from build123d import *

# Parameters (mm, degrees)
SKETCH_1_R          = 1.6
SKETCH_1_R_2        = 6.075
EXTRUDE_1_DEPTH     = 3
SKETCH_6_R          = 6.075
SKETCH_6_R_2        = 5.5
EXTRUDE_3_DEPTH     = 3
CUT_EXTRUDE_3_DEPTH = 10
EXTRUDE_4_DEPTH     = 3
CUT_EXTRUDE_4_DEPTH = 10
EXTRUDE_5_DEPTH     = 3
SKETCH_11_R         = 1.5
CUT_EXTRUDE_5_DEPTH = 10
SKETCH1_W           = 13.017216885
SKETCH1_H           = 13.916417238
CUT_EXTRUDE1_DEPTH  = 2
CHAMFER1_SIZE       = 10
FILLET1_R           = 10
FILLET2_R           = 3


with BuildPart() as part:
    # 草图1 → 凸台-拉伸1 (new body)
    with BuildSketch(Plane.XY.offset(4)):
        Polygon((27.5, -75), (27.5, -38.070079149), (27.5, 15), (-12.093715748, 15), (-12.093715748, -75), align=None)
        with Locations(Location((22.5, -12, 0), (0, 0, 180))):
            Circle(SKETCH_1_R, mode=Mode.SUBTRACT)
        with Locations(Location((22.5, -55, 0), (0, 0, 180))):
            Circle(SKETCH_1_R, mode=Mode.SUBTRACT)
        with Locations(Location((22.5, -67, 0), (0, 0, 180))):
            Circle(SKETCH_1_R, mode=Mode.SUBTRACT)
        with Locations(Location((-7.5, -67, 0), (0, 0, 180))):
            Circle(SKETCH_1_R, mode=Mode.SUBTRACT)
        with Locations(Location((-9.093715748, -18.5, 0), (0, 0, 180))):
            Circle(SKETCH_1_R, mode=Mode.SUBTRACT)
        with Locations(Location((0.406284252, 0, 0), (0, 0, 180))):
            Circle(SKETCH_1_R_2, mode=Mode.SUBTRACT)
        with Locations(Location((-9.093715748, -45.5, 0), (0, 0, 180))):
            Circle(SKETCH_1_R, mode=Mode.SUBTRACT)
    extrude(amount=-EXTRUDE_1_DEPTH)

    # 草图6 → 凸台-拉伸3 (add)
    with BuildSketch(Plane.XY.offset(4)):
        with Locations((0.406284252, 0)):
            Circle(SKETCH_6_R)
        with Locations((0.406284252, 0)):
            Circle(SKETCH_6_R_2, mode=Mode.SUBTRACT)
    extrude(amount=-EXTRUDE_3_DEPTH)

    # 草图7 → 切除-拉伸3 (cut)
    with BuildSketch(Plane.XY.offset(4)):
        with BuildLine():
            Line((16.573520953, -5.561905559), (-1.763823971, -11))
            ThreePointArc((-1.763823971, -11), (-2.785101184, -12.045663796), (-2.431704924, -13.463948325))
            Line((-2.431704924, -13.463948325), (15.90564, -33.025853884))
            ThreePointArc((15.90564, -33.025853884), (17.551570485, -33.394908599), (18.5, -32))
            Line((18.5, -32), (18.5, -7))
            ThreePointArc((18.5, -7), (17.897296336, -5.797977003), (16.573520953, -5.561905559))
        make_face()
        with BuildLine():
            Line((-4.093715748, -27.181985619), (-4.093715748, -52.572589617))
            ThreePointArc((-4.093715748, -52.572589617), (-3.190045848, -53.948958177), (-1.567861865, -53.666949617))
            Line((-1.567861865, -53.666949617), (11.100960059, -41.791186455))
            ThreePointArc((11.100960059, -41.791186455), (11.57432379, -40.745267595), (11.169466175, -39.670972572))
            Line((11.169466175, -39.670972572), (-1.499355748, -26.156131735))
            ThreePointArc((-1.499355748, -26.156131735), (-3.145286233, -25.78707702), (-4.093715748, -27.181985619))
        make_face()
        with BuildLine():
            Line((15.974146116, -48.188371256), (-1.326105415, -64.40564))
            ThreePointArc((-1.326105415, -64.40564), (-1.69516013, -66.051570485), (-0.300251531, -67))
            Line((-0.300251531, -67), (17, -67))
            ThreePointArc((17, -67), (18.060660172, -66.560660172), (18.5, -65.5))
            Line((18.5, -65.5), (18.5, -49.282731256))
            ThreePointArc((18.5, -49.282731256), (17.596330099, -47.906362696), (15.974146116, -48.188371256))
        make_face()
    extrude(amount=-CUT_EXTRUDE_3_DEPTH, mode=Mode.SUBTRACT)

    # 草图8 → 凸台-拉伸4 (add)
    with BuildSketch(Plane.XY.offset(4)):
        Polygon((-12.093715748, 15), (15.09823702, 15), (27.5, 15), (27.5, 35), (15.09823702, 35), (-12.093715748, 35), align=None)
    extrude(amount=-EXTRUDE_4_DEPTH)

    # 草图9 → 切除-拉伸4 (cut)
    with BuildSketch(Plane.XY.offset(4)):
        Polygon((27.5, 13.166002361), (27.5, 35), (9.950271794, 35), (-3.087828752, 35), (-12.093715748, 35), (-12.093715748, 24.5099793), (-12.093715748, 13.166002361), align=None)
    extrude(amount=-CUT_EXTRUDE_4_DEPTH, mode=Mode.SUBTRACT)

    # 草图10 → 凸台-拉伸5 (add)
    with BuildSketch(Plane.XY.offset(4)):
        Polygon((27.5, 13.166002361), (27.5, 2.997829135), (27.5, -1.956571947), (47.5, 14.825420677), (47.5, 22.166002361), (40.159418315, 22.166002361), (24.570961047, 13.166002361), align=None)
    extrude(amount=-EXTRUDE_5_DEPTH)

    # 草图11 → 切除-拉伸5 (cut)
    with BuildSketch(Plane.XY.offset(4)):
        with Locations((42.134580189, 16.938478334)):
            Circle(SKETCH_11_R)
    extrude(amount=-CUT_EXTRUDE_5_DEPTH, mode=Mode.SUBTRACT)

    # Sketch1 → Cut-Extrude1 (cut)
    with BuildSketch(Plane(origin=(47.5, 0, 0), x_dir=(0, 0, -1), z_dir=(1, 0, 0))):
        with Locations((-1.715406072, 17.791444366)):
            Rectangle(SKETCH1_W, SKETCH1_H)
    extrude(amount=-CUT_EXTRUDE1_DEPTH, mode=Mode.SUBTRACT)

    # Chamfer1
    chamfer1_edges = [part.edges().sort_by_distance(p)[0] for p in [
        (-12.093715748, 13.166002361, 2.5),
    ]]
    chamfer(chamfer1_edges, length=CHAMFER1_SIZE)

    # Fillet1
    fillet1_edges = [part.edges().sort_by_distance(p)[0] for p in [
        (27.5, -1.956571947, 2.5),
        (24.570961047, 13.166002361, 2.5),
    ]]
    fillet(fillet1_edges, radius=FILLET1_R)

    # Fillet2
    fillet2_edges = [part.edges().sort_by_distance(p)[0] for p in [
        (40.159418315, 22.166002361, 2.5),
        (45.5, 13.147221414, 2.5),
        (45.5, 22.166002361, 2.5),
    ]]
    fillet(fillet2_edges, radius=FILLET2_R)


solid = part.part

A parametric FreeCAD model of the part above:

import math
import FreeCAD as App
import Part
import Sketcher
Q = App.Units.Quantity


def edges_at(feature, points):
    """Names of the edges that pass closest to the given points."""
    edges = feature.Shape.Edges
    near = lambda p: min(range(len(edges)), key=lambda i: edges[i].distToShape(Part.Vertex(*p))[0])
    return sorted({f"Edge{near(p) + 1}" for p in points})


def add_polygon(sketch, points):
    """Adds a closed chain of lines whose ends are joined by coincident constraints."""
    first, n = sketch.GeometryCount, len(points)
    for a, b in zip(points, points[1:] + points[:1]):
        sketch.addGeometry(Part.LineSegment(App.Vector(*a, 0), App.Vector(*b, 0)), False)
    for i in range(n):
        sketch.addConstraint(Sketcher.Constraint("Coincident", first + i, 2, first + (i + 1) % n, 1))

doc = App.newDocument("Part")
body = doc.addObject("PartDesign::Body", "Body")

sketch1 = body.newObject("Sketcher::SketchObject", "Sketch")
sketch1.AttachmentSupport = (doc.getObject("XY_Plane"), [""])
sketch1.MapMode = "FlatFace"
sketch1.AttachmentOffset = App.Placement(App.Vector(0, 0, 4), App.Rotation())
add_polygon(sketch1, [(27.5, -75), (27.5, 15), (-12.1, 15), (-12.1, -75)])
sketch1.addGeometry(Part.Circle(App.Vector(-7.5, -67, 0), App.Vector(0, 0, 1), 1.6), False)
sketch1.addGeometry(Part.Circle(App.Vector(-9.1, -45.5, 0), App.Vector(0, 0, 1), 1.6), False)
sketch1.addGeometry(Part.Circle(App.Vector(22.5, -67, 0), App.Vector(0, 0, 1), 1.6), False)
sketch1.addGeometry(Part.Circle(App.Vector(22.5, -55, 0), App.Vector(0, 0, 1), 1.6), False)
sketch1.addGeometry(Part.Circle(App.Vector(-9.1, -18.5, 0), App.Vector(0, 0, 1), 1.6), False)
sketch1.addGeometry(Part.Circle(App.Vector(0.4, 0, 0), App.Vector(0, 0, 1), 6.1), False)
sketch1.addGeometry(Part.Circle(App.Vector(22.5, -12, 0), App.Vector(0, 0, 1), 1.6), False)
sketch1.addConstraint([
    Sketcher.Constraint("Vertical", 0),
    Sketcher.Constraint("Horizontal", 1),
    Sketcher.Constraint("Vertical", 2),
    Sketcher.Constraint("Horizontal", 3),
    Sketcher.Constraint("Equal", 4, 5),
    Sketcher.Constraint("Equal", 5, 6),
    Sketcher.Constraint("Equal", 6, 7),
    Sketcher.Constraint("Equal", 7, 8),
    Sketcher.Constraint("Equal", 8, 10),
    Sketcher.Constraint("PointOnObject", 9, 3, -1),
    Sketcher.Constraint("Horizontal", 4, 3, 6, 3),
    Sketcher.Constraint("Vertical", 6, 3, 7, 3),
    Sketcher.Constraint("Vertical", 5, 3, 8, 3),
    Sketcher.Constraint("Vertical", 7, 3, 10, 3),
    Sketcher.Constraint("Diameter", 4, Q("3.2 mm")),
    Sketcher.Constraint("Diameter", 9, Q("12.15 mm")),
    Sketcher.Constraint("DistanceY", 0, 1, 0, 2, Q("90 mm")),
    Sketcher.Constraint("DistanceY", 4, 3, -1, 1, Q("67 mm")),
    Sketcher.Constraint("DistanceY", 7, 3, -1, 1, Q("55 mm")),
    Sketcher.Constraint("DistanceY", 10, 3, -1, 1, Q("12 mm")),
    Sketcher.Constraint("DistanceY", -1, 1, 0, 2, Q("15 mm")),
    Sketcher.Constraint("DistanceX", 4, 3, 6, 3, Q("30 mm")),
    Sketcher.Constraint("DistanceY", 5, 3, 8, 3, Q("27 mm")),
    Sketcher.Constraint("DistanceX", 10, 3, 0, 2, Q("5 mm")),
    Sketcher.Constraint("DistanceX", 1, 2, 8, 3, Q("3 mm")),
    Sketcher.Constraint("DistanceX", 4, 3, -1, 1, Q("7.5 mm")),
    Sketcher.Constraint("DistanceY", 5, 3, -1, 1, Q("45.5 mm")),
    Sketcher.Constraint("DistanceX", 8, 3, 9, 3, Q("9.5 mm")),
    Sketcher.Constraint("DistanceX", 1, 2, 1, 1, Q("39.593716 mm")),
])
pad1 = body.newObject("PartDesign::Pad", "Pad")
pad1.Profile = sketch1
pad1.Length = 3
pad1.Reversed = True

sketch2 = body.newObject("Sketcher::SketchObject", "Sketch001")
sketch2.AttachmentSupport = (doc.getObject("XY_Plane"), [""])
sketch2.MapMode = "FlatFace"
sketch2.AttachmentOffset = App.Placement(App.Vector(0, 0, 4), App.Rotation())
sketch2.addGeometry([
    Part.Circle(App.Vector(0, 0, 0), App.Vector(0, 0, 1), 6),
    Part.Circle(App.Vector(0, 0, 0), App.Vector(0, 0, 1), 6),
], False)
sketch2.addConstraint([
    Sketcher.Constraint("Coincident", 1, 3, 0, 3),
    Sketcher.Constraint("PointOnObject", 0, 3, -1),
    Sketcher.Constraint("Diameter", 1, Q("11 mm")),
    Sketcher.Constraint("Diameter", 0, Q("12.15 mm")),
    Sketcher.Constraint("DistanceX", -1, 1, 0, 3, Q("0.406284 mm")),
])
pad2 = body.newObject("PartDesign::Pad", "Pad001")
pad2.Profile = sketch2
pad2.Length = 3
pad2.Reversed = True

sketch3 = body.newObject("Sketcher::SketchObject", "Sketch002")
sketch3.AttachmentSupport = (doc.getObject("XY_Plane"), [""])
sketch3.MapMode = "FlatFace"
sketch3.AttachmentOffset = App.Placement(App.Vector(0, 0, 4), App.Rotation())
sketch3.addGeometry([
    Part.LineSegment(App.Vector(16.6, -5.6, 0), App.Vector(-1.8, -11, 0)),
    Part.ArcOfCircle(Part.Circle(App.Vector(-1.3, -12.4, 0), App.Vector(0, 0, 1), 1.5), math.radians(107), math.radians(223)),
    Part.LineSegment(App.Vector(-2.4, -13.5, 0), App.Vector(15.9, -33, 0)),
    Part.ArcOfCircle(Part.Circle(App.Vector(17, -32, 0), App.Vector(0, 0, 1), 1.5), math.radians(-137), math.radians(0)),
    Part.LineSegment(App.Vector(18.5, -32, 0), App.Vector(18.5, -7, 0)),
    Part.ArcOfCircle(Part.Circle(App.Vector(17, -7, 0), App.Vector(0, 0, 1), 1.5), math.radians(0), math.radians(107)),
    Part.LineSegment(App.Vector(-4.1, -27.2, 0), App.Vector(-4.1, -52.6, 0)),
    Part.ArcOfCircle(Part.Circle(App.Vector(-2.6, -52.6, 0), App.Vector(0, 0, 1), 1.5), math.radians(180), math.radians(313)),
    Part.LineSegment(App.Vector(-1.6, -53.7, 0), App.Vector(11.1, -41.8, 0)),
    Part.ArcOfCircle(Part.Circle(App.Vector(10.1, -40.7, 0), App.Vector(0, 0, 1), 1.5), math.radians(-47), math.radians(43)),
    Part.LineSegment(App.Vector(11.2, -39.7, 0), App.Vector(-1.5, -26.2, 0)),
    Part.ArcOfCircle(Part.Circle(App.Vector(-2.6, -27.2, 0), App.Vector(0, 0, 1), 1.5), math.radians(43), math.radians(180)),
    Part.LineSegment(App.Vector(16, -48.2, 0), App.Vector(-1.3, -64.4, 0)),
    Part.ArcOfCircle(Part.Circle(App.Vector(-0.3, -65.5, 0), App.Vector(0, 0, 1), 1.5), math.radians(133), math.radians(270)),
    Part.LineSegment(App.Vector(-0.3, -67, 0), App.Vector(17, -67, 0)),
    Part.ArcOfCircle(Part.Circle(App.Vector(17, -65.5, 0), App.Vector(0, 0, 1), 1.5), math.radians(-90), math.radians(0)),
    Part.LineSegment(App.Vector(18.5, -65.5, 0), App.Vector(18.5, -49.3, 0)),
    Part.ArcOfCircle(Part.Circle(App.Vector(17, -49.3, 0), App.Vector(0, 0, 1), 1.5), math.radians(0), math.radians(133)),
], False)
sketch3.addConstraint([
    Sketcher.Constraint("Tangent", 0, 2, 1, 1),
    Sketcher.Constraint("Tangent", 1, 2, 2, 1),
    Sketcher.Constraint("Tangent", 2, 2, 3, 1),
    Sketcher.Constraint("Tangent", 3, 2, 4, 1),
    Sketcher.Constraint("Tangent", 4, 2, 5, 1),
    Sketcher.Constraint("Tangent", 5, 2, 0, 1),
    Sketcher.Constraint("Tangent", 6, 2, 7, 1),
    Sketcher.Constraint("Tangent", 7, 2, 8, 1),
    Sketcher.Constraint("Tangent", 8, 2, 9, 1),
    Sketcher.Constraint("Tangent", 9, 2, 10, 1),
    Sketcher.Constraint("Tangent", 10, 2, 11, 1),
    Sketcher.Constraint("Tangent", 11, 2, 6, 1),
    Sketcher.Constraint("Tangent", 12, 2, 13, 1),
    Sketcher.Constraint("Tangent", 13, 2, 14, 1),
    Sketcher.Constraint("Tangent", 14, 2, 15, 1),
    Sketcher.Constraint("Tangent", 15, 2, 16, 1),
    Sketcher.Constraint("Tangent", 16, 2, 17, 1),
    Sketcher.Constraint("Tangent", 17, 2, 12, 1),
    Sketcher.Constraint("Vertical", 4),
    Sketcher.Constraint("Vertical", 6),
    Sketcher.Constraint("Horizontal", 14),
    Sketcher.Constraint("Vertical", 16),
    Sketcher.Constraint("Equal", 1, 3),
    Sketcher.Constraint("Equal", 3, 5),
    Sketcher.Constraint("Equal", 5, 7),
    Sketcher.Constraint("Equal", 7, 9),
    Sketcher.Constraint("Equal", 9, 11),
    Sketcher.Constraint("Equal", 11, 13),
    Sketcher.Constraint("Equal", 13, 15),
    Sketcher.Constraint("Equal", 15, 17),
    Sketcher.Constraint("Perpendicular", 2, 8),
    Sketcher.Constraint("Perpendicular", 8, 10),
    Sketcher.Constraint("Perpendicular", 10, 12),
    Sketcher.Constraint("Vertical", 5, 3, 15, 3),
    Sketcher.Constraint("Radius", 1, Q("1.5 mm")),
    Sketcher.Constraint("DistanceY", 4, 1, 4, 2, Q("25 mm")),
    Sketcher.Constraint("DistanceX", -1, 1, 3, 3, Q("17 mm")),
    Sketcher.Constraint("DistanceY", 3, 3, -1, 1, Q("32 mm")),
    Sketcher.Constraint("DistanceY", 0, 2, -1, 1, Q("11 mm")),
    Sketcher.Constraint("DistanceY", 13, 2, -1, 1, Q("67 mm")),
    Sketcher.Constraint("Distance", 8, Q("17.3647 mm")),
    Sketcher.Constraint("DistanceX", 14, 1, 14, 2, Q("17.300252 mm")),
    Sketcher.Constraint("DistanceY", 16, 1, 16, 2, Q("16.217269 mm")),
    Sketcher.Constraint("DistanceY", 17, 2, 9, 2, Q("8.517399 mm")),
    Sketcher.Constraint("DistanceX", 7, 2, -1, 1, Q("1.567862 mm")),
])
pocket1 = body.newObject("PartDesign::Pocket", "Pocket")
pocket1.Profile = sketch3
pocket1.Length = 10

sketch4 = body.newObject("Sketcher::SketchObject", "Sketch003")
sketch4.AttachmentSupport = (doc.getObject("XY_Plane"), [""])
sketch4.MapMode = "FlatFace"
sketch4.AttachmentOffset = App.Placement(App.Vector(0, 0, 4), App.Rotation())
add_polygon(sketch4, [(-12, 15), (28, 15), (28, 35), (-12, 35)])
sketch4.addConstraint([
    Sketcher.Constraint("Horizontal", 0),
    Sketcher.Constraint("Vertical", 1),
    Sketcher.Constraint("Horizontal", 2),
    Sketcher.Constraint("Vertical", 3),
    Sketcher.Constraint("DistanceY", 1, 1, 1, 2, Q("20 mm")),
    Sketcher.Constraint("DistanceY", -1, 1, 0, 2, Q("15 mm")),
    Sketcher.Constraint("DistanceX", -1, 1, 0, 2, Q("27.5 mm")),
    Sketcher.Constraint("DistanceX", 0, 1, 0, 2, Q("39.593716 mm")),
])
pad3 = body.newObject("PartDesign::Pad", "Pad002")
pad3.Profile = sketch4
pad3.Length = 3
pad3.Reversed = True

sketch5 = body.newObject("Sketcher::SketchObject", "Sketch004")
sketch5.AttachmentSupport = (doc.getObject("XY_Plane"), [""])
sketch5.MapMode = "FlatFace"
sketch5.AttachmentOffset = App.Placement(App.Vector(0, 0, 4), App.Rotation())
add_polygon(sketch5, [(28, 13), (28, 35), (-12, 35), (-12, 13)])
sketch5.addConstraint([
    Sketcher.Constraint("Vertical", 0),
    Sketcher.Constraint("Horizontal", 1),
    Sketcher.Constraint("Vertical", 2),
    Sketcher.Constraint("Horizontal", 3),
    Sketcher.Constraint("DistanceY", -1, 1, 0, 2, Q("35 mm")),
    Sketcher.Constraint("DistanceX", -1, 1, 0, 2, Q("27.5 mm")),
    Sketcher.Constraint("DistanceX", 1, 2, 1, 1, Q("39.593716 mm")),
    Sketcher.Constraint("DistanceY", 0, 1, 0, 2, Q("21.833998 mm")),
])
pocket2 = body.newObject("PartDesign::Pocket", "Pocket001")
pocket2.Profile = sketch5
pocket2.Length = 10

sketch6 = body.newObject("Sketcher::SketchObject", "Sketch005")
sketch6.AttachmentSupport = (doc.getObject("XY_Plane"), [""])
sketch6.MapMode = "FlatFace"
sketch6.AttachmentOffset = App.Placement(App.Vector(0, 0, 4), App.Rotation())
add_polygon(sketch6, [(27.5, 13.2), (27.5, -2), (47.5, 14.8), (47.5, 22.2), (40.2, 22.2), (24.6, 13.2)])
sketch6.addConstraint([
    Sketcher.Constraint("Vertical", 0),
    Sketcher.Constraint("Vertical", 2),
    Sketcher.Constraint("Horizontal", 3),
    Sketcher.Constraint("Horizontal", 5),
    Sketcher.Constraint("Equal", 3, 2),
    Sketcher.Constraint("Angle", 1, Q("40 deg")),
    Sketcher.Constraint("Angle", 4, Q("-150 deg")),
    Sketcher.Constraint("Distance", 4, Q("18 mm")),
    Sketcher.Constraint("DistanceX", 0, 2, 1, 2, Q("20 mm")),
    Sketcher.Constraint("DistanceX", -1, 1, 0, 2, Q("27.5 mm")),
    Sketcher.Constraint("DistanceX", 3, 2, 3, 1, Q("7.340582 mm")),
    Sketcher.Constraint("DistanceY", 0, 2, -1, 1, Q("1.956572 mm")),
])
pad4 = body.newObject("PartDesign::Pad", "Pad003")
pad4.Profile = sketch6
pad4.Length = 3
pad4.Reversed = True

sketch7 = body.newObject("Sketcher::SketchObject", "Sketch006")
sketch7.AttachmentSupport = (doc.getObject("XY_Plane"), [""])
sketch7.MapMode = "FlatFace"
sketch7.AttachmentOffset = App.Placement(App.Vector(0, 0, 4), App.Rotation())
sketch7.addGeometry(Part.Circle(App.Vector(42.1, 16.9, 0), App.Vector(0, 0, 1), 1.5), False)
sketch7.addConstraint([
    Sketcher.Constraint("Diameter", 0, Q("3 mm")),
    Sketcher.Constraint("DistanceX", -1, 1, 0, 3, Q("42.13458 mm")),
    Sketcher.Constraint("DistanceY", -1, 1, 0, 3, Q("16.938478 mm")),
])
pocket3 = body.newObject("PartDesign::Pocket", "Pocket002")
pocket3.Profile = sketch7
pocket3.Length = 10

sketch8 = body.newObject("Sketcher::SketchObject", "Sketch007")
sketch8.AttachmentSupport = (doc.getObject("YZ_Plane"), [""])
sketch8.MapMode = "FlatFace"
sketch8.AttachmentOffset = App.Placement(App.Vector(0, 0, 47.5), App.Rotation())
add_polygon(sketch8, [(25, 8), (11, 8), (11, -5), (25, -5)])
sketch8.addConstraint([
    Sketcher.Constraint("Horizontal", 0),
    Sketcher.Constraint("Vertical", 1),
    Sketcher.Constraint("Horizontal", 2),
    Sketcher.Constraint("Vertical", 3),
    Sketcher.Constraint("DistanceX", 0, 2, 0, 1, Q("13.916417 mm")),
    Sketcher.Constraint("DistanceY", 1, 2, 1, 1, Q("13.017217 mm")),
    Sketcher.Constraint("DistanceX", -1, 1, 0, 2, Q("10.833236 mm")),
    Sketcher.Constraint("DistanceY", -1, 1, 0, 2, Q("8.224015 mm")),
])
pocket4 = body.newObject("PartDesign::Pocket", "Pocket003")
pocket4.Profile = sketch8
pocket4.Length = 2
doc.recompute()

chamfer = body.newObject("PartDesign::Chamfer", "Chamfer")
chamfer.Base = (pocket4, edges_at(pocket4, [(-12.094, 13.166, 2.5)]))
chamfer.Size = 10
doc.recompute()

fillet = body.newObject("PartDesign::Fillet", "Fillet")
fillet.Base = (chamfer, edges_at(chamfer, [(27.5, -1.957, 2.5), (24.571, 13.166, 2.5)]))
fillet.Radius = 10
doc.recompute()

fillet2 = body.newObject("PartDesign::Fillet", "Fillet001")
fillet2.Base = (fillet, edges_at(fillet, [(40.159, 22.166, 2.5), (45.5, 13.147, 2.5), (45.5, 22.166, 2.5)]))
fillet2.Radius = 3

doc.recompute()
